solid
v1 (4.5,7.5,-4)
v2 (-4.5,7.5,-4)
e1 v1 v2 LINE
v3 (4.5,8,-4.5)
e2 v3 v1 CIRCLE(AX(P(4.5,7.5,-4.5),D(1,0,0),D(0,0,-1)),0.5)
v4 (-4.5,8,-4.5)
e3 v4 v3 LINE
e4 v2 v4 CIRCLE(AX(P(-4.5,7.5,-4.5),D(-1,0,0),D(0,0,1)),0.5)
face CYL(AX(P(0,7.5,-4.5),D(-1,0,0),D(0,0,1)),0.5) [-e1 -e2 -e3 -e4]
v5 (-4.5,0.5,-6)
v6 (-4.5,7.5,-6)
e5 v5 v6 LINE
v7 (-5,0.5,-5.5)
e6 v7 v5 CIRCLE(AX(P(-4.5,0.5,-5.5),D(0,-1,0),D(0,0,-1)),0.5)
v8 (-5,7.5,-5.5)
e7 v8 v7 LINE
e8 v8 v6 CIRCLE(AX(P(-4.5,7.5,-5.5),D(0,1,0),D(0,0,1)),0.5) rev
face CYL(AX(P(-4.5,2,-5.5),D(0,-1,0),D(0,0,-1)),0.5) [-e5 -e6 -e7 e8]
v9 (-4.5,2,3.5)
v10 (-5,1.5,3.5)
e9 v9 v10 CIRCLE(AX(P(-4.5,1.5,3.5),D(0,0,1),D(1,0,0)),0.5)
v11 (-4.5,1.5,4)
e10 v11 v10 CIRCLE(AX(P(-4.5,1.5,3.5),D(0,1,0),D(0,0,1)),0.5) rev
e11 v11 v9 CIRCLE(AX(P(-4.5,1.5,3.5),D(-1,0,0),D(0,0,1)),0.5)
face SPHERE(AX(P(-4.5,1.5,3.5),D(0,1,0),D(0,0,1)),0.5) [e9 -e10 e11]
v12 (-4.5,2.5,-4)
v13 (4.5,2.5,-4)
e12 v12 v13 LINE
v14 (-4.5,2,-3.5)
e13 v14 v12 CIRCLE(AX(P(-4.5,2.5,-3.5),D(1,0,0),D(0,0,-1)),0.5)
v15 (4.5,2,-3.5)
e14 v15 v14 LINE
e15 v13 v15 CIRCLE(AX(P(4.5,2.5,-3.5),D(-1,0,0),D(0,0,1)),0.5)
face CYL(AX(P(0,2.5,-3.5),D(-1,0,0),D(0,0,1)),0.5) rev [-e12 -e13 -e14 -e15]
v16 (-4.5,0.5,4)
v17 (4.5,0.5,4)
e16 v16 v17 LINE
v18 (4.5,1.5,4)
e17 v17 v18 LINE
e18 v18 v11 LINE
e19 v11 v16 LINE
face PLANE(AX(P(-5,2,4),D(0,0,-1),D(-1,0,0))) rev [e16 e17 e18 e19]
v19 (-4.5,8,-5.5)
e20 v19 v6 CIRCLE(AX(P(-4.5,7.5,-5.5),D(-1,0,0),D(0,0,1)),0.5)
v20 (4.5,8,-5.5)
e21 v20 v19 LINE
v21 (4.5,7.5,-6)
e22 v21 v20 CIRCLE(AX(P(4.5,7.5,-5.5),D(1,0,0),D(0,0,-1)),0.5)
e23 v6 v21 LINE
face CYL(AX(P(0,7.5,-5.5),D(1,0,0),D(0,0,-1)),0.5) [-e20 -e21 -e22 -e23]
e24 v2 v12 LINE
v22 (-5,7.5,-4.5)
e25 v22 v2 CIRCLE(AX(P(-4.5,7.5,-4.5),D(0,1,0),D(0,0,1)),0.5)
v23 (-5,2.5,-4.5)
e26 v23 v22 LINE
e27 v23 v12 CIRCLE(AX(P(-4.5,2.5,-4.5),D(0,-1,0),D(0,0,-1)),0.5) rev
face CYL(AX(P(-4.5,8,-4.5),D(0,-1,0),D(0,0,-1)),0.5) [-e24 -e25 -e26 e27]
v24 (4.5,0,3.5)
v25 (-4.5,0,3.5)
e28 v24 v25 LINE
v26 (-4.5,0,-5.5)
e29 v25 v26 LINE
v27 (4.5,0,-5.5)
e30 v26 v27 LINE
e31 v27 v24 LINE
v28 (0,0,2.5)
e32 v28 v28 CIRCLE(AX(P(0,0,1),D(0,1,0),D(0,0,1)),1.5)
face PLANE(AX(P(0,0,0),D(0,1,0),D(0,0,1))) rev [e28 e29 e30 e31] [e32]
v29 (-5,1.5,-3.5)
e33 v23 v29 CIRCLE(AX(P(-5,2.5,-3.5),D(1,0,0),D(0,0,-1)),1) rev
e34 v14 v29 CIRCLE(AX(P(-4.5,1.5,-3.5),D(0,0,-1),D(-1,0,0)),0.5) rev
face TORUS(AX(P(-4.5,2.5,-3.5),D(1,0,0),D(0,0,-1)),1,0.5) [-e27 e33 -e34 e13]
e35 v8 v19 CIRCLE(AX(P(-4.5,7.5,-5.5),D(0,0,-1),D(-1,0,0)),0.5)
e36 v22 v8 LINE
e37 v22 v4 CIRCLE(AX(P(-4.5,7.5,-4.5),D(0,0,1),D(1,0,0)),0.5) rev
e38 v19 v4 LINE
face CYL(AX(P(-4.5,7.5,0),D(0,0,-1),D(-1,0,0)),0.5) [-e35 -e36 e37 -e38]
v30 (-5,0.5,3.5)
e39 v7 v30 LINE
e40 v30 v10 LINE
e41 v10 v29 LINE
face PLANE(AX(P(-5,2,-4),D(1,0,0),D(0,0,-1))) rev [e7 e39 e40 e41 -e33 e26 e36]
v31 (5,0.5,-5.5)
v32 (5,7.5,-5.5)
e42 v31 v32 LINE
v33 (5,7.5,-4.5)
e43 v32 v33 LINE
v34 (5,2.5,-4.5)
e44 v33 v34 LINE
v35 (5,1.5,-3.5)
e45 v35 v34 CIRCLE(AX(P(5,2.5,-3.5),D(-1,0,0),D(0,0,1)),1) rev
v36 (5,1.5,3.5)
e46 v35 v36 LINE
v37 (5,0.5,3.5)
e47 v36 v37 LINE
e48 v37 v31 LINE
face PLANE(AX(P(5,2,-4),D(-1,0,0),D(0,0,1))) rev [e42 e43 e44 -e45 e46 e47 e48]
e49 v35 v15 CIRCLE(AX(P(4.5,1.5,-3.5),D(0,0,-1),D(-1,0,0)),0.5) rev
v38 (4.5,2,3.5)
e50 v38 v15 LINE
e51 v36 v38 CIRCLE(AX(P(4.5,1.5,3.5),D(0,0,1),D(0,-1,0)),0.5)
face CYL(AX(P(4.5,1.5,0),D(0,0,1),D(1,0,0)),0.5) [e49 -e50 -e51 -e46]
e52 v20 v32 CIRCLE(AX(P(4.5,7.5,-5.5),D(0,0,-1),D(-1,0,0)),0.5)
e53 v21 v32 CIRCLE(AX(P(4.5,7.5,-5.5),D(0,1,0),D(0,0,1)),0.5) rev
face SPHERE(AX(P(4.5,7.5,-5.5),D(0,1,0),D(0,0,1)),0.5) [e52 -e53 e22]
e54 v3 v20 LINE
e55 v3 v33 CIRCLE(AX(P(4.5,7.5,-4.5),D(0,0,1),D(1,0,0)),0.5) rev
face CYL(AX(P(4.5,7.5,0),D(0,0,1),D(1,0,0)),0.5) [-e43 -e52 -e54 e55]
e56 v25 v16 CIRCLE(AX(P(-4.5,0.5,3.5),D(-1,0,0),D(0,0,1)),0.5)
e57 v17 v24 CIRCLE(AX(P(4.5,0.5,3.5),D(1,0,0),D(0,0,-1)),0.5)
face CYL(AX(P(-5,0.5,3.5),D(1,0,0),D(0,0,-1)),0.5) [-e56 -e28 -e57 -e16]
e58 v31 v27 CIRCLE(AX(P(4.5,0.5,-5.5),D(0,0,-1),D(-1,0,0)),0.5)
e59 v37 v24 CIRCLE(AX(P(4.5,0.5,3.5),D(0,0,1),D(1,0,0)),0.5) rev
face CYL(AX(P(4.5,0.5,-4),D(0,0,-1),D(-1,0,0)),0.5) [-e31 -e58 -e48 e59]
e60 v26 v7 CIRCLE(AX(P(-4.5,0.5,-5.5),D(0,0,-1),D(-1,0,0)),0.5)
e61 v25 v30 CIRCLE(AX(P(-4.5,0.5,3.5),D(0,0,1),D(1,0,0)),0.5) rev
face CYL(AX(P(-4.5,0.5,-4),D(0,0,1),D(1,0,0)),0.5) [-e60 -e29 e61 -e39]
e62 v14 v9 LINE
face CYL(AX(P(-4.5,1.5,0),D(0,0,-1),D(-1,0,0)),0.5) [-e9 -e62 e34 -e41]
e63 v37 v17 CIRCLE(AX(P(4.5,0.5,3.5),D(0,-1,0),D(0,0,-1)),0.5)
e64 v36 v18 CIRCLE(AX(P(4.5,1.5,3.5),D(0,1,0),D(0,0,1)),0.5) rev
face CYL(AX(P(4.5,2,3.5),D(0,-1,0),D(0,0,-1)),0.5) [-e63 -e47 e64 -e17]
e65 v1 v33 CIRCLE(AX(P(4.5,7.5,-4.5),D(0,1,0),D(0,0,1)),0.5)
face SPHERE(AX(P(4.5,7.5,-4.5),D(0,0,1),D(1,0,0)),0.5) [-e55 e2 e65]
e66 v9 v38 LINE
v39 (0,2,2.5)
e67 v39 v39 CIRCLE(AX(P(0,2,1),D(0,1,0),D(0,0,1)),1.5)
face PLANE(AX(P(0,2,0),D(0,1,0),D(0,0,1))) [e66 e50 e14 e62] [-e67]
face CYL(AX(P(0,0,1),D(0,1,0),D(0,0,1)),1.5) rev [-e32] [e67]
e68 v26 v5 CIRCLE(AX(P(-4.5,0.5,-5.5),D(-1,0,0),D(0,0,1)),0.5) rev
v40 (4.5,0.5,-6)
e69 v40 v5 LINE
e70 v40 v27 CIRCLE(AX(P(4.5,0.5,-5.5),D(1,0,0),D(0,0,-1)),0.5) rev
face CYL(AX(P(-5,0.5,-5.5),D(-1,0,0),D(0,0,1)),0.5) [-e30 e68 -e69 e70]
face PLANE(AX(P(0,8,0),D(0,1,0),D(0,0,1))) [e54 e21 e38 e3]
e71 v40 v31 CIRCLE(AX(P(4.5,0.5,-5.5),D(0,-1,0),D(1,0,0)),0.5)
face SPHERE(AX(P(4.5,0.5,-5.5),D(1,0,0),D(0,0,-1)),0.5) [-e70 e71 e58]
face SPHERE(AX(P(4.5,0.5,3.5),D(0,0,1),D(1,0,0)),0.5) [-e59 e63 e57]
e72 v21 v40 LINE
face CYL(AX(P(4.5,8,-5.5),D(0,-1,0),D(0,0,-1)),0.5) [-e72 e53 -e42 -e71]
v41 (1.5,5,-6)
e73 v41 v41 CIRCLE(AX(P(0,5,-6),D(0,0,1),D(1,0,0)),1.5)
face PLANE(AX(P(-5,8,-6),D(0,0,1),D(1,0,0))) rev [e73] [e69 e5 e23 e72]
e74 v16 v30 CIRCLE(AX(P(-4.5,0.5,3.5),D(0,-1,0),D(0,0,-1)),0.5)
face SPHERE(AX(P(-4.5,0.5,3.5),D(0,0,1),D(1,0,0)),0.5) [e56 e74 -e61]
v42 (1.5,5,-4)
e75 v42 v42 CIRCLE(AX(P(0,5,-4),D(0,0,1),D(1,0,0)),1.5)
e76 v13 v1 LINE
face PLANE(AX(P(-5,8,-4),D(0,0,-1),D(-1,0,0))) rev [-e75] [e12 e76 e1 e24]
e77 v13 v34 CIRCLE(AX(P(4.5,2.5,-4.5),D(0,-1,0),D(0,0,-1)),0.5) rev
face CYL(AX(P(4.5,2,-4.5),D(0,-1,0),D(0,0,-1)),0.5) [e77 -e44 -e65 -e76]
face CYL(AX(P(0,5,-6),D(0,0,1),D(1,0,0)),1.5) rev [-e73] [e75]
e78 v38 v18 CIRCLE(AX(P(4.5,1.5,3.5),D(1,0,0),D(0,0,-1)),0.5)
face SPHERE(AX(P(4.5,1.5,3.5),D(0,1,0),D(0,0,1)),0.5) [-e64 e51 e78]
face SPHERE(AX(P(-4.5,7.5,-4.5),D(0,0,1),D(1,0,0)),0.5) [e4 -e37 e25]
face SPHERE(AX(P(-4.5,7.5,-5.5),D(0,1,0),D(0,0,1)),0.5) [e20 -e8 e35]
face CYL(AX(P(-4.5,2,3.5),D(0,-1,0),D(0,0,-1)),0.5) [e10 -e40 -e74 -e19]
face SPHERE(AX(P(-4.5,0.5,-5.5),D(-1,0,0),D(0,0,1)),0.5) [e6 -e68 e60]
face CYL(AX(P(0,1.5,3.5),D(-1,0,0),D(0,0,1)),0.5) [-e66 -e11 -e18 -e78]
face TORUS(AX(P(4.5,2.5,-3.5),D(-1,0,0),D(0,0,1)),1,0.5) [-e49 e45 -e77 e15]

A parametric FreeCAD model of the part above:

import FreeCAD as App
import Part
import Sketcher


def edges_at(feature, points):
    """Names of the edges that pass closest to the given points."""
    edges = feature.Shape.Edges
    near = lambda p: min(range(len(edges)), key=lambda i: edges[i].distToShape(Part.Vertex(*p))[0])
    return sorted({f"Edge{near(p) + 1}" for p in points})


def add_polygon(sketch, points):
    """Adds a closed chain of lines whose ends are joined by coincident constraints."""
    first, n = sketch.GeometryCount, len(points)
    for a, b in zip(points, points[1:] + points[:1]):
        sketch.addGeometry(Part.LineSegment(App.Vector(*a, 0), App.Vector(*b, 0)), False)
    for i in range(n):
        sketch.addConstraint(Sketcher.Constraint("Coincident", first + i, 2, first + (i + 1) % n, 1))

doc = App.newDocument("Part")
body = doc.addObject("PartDesign::Body", "Body")

# Sketch on XZ plane
sketch1 = body.newObject("Sketcher::SketchObject", "Sketch")
sketch1.AttachmentSupport = (doc.getObject("XZ_Plane"), [""])
sketch1.MapMode = "FlatFace"
add_polygon(sketch1, [(-5, -4), (-5, 4), (5, 4), (5, -4)])  # lines 0-3
sketch1.addConstraint([
    Sketcher.Constraint("Vertical", 0),
    Sketcher.Constraint("Horizontal", 1),
    Sketcher.Constraint("Vertical", 2),
    Sketcher.Constraint("Horizontal", 3),
    Sketcher.Constraint("Symmetric", 0, 2, 2, 2, -1, 1),
    Sketcher.Constraint("DistanceX", 1, 1, 1, 2, 10.0),
    Sketcher.Constraint("DistanceY", 0, 1, 0, 2, 8.0),
])
pad1 = body.newObject("PartDesign::Pad", "Pad")
pad1.Profile = sketch1
pad1.Length = 2
pad1.Reversed = True

# Sketch on XZ plane
sketch2 = body.newObject("Sketcher::SketchObject", "Sketch001")
sketch2.AttachmentSupport = (doc.getObject("XZ_Plane"), [""])
sketch2.MapMode = "FlatFace"
add_polygon(sketch2, [(-5, -6), (-5, -4), (5, -4), (5, -6)])  # lines 0-3
sketch2.addConstraint([
    Sketcher.Constraint("Vertical", 0),
    Sketcher.Constraint("Horizontal", 1),
    Sketcher.Constraint("Vertical", 2),
    Sketcher.Constraint("Horizontal", 3),
    Sketcher.Constraint("DistanceX", 1, 1, 1, 2, 10.0),
    Sketcher.Constraint("DistanceY", 0, 1, 0, 2, 2.0),
    Sketcher.Constraint("DistanceX", 0, 2, -1, 1, 5.0),
    Sketcher.Constraint("DistanceY", 0, 2, -1, 1, 4.0),
])
pad2 = body.newObject("PartDesign::Pad", "Pad001")
pad2.Profile = sketch2
pad2.Length = 8
pad2.Reversed = True

# Sketch on XZ plane
sketch3 = body.newObject("Sketcher::SketchObject", "Sketch002")
sketch3.AttachmentSupport = (doc.getObject("XZ_Plane"), [""])
sketch3.MapMode = "FlatFace"
sketch3.AttachmentOffset = App.Placement(App.Vector(0, 0, -2), App.Rotation())
sketch3.addGeometry(Part.Circle(App.Vector(0, 1, 0), App.Vector(0, 0, 1), 1.5), False)
sketch3.addConstraint([
    Sketcher.Constraint("PointOnObject", 0, 3, -2),
    Sketcher.Constraint("Diameter", 0, 3.0),
    Sketcher.Constraint("DistanceY", -1, 1, 0, 3, 1.0),
])
pocket1 = body.newObject("PartDesign::Pocket", "Pocket")
pocket1.Profile = sketch3
pocket1.Type = "ThroughAll"
pocket1.Reversed = True

# Sketch on XY plane
sketch4 = body.newObject("Sketcher::SketchObject", "Sketch003")
sketch4.AttachmentSupport = (doc.getObject("XY_Plane"), [""])
sketch4.MapMode = "FlatFace"
sketch4.AttachmentOffset = App.Placement(App.Vector(0, 0, -4), App.Rotation())
sketch4.addGeometry(Part.Circle(App.Vector(0, 5, 0), App.Vector(0, 0, 1), 1.5), False)
sketch4.addConstraint([
    Sketcher.Constraint("PointOnObject", 0, 3, -2),
    Sketcher.Constraint("Diameter", 0, 3.0),
    Sketcher.Constraint("DistanceY", -1, 1, 0, 3, 5.0),
])
pocket2 = body.newObject("PartDesign::Pocket", "Pocket001")
pocket2.Profile = sketch4
pocket2.Type = "ThroughAll"
doc.recompute()

fillet = body.newObject("PartDesign::Fillet", "Fillet")
fillet.Base = (pocket2, edges_at(pocket2, [
    (-5, 2, 0),
    (5, 5, -4),
    (0, 0, -6),
    (5, 4, -6),
    (-5, 4, -6),
    (-5, 5, -4),
    (5, 8, -5),
    (0, 8, -6),
    (0, 2, 4),
    (-5, 8, -5),
    (0, 8, -4),
    (5, 2, 0),
    (0, 0, 4),
    (-5, 0, -1),
    (5, 0, -1),
    (5, 1, 4),
    (-5, 1, 4),
    (0, 2, -4),
]))
fillet.Radius = 0.5

doc.recompute()
